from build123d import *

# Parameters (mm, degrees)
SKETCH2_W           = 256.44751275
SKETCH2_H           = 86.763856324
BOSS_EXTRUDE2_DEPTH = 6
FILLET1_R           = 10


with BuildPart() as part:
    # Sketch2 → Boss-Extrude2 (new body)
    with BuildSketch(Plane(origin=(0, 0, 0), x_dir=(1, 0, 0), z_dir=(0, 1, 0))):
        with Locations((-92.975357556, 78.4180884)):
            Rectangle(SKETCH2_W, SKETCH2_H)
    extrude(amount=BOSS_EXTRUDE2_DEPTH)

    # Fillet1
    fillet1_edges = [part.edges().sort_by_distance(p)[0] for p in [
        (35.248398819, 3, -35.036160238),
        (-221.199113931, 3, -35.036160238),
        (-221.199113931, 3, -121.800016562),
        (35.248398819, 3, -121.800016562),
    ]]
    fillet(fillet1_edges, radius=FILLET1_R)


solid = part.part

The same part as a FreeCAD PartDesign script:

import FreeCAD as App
import Part
import Sketcher


def edges_at(feature, points):
    """Names of the edges that pass closest to the given points."""
    edges = feature.Shape.Edges
    near = lambda p: min(range(len(edges)), key=lambda i: edges[i].distToShape(Part.Vertex(*p))[0])
    return sorted({f"Edge{near(p) + 1}" for p in points})


def add_polygon(sketch, points):
    """Adds a closed chain of lines whose ends are joined by coincident constraints."""
    first, n = sketch.GeometryCount, len(points)
    for a, b in zip(points, points[1:] + points[:1]):
        sketch.addGeometry(Part.LineSegment(App.Vector(*a, 0), App.Vector(*b, 0)), False)
    for i in range(n):
        sketch.addConstraint(Sketcher.Constraint("Coincident", first + i, 2, first + (i + 1) % n, 1))

doc = App.newDocument("Part")
body = doc.addObject("PartDesign::Body", "Body")

# Sketch on XZ plane
sketch1 = body.newObject("Sketcher::SketchObject", "Sketch")
sketch1.AttachmentSupport = (doc.getObject("XZ_Plane"), [""])
sketch1.MapMode = "FlatFace"
add_polygon(sketch1, [(-221, -122), (-221, -35), (35, -35), (35, -122)])  # lines 0-3
sketch1.addConstraint([
    Sketcher.Constraint("Vertical", 0),
    Sketcher.Constraint("Horizontal", 1),
    Sketcher.Constraint("Vertical", 2),
    Sketcher.Constraint("Horizontal", 3),
    Sketcher.Constraint("DistanceX", -1, 1, 1, 2, 35.248399),
    Sketcher.Constraint("DistanceX", 1, 1, 1, 2, 256.447513),
    Sketcher.Constraint("DistanceY", 0, 1, 0, 2, 86.763856),
    Sketcher.Constraint("DistanceY", 0, 2, -1, 1, 35.03616),
])
pad1 = body.newObject("PartDesign::Pad", "Pad")
pad1.Profile = sketch1
pad1.Length = 6
pad1.Reversed = True
doc.recompute()

fillet = body.newObject("PartDesign::Fillet", "Fillet")
fillet.Base = (pad1, edges_at(pad1, [
    (35.248, 3, -35.036),
    (-221.199, 3, -35.036),
    (-221.199, 3, -121.8),
    (35.248, 3, -121.8),
]))
fillet.Radius = 10

doc.recompute()
